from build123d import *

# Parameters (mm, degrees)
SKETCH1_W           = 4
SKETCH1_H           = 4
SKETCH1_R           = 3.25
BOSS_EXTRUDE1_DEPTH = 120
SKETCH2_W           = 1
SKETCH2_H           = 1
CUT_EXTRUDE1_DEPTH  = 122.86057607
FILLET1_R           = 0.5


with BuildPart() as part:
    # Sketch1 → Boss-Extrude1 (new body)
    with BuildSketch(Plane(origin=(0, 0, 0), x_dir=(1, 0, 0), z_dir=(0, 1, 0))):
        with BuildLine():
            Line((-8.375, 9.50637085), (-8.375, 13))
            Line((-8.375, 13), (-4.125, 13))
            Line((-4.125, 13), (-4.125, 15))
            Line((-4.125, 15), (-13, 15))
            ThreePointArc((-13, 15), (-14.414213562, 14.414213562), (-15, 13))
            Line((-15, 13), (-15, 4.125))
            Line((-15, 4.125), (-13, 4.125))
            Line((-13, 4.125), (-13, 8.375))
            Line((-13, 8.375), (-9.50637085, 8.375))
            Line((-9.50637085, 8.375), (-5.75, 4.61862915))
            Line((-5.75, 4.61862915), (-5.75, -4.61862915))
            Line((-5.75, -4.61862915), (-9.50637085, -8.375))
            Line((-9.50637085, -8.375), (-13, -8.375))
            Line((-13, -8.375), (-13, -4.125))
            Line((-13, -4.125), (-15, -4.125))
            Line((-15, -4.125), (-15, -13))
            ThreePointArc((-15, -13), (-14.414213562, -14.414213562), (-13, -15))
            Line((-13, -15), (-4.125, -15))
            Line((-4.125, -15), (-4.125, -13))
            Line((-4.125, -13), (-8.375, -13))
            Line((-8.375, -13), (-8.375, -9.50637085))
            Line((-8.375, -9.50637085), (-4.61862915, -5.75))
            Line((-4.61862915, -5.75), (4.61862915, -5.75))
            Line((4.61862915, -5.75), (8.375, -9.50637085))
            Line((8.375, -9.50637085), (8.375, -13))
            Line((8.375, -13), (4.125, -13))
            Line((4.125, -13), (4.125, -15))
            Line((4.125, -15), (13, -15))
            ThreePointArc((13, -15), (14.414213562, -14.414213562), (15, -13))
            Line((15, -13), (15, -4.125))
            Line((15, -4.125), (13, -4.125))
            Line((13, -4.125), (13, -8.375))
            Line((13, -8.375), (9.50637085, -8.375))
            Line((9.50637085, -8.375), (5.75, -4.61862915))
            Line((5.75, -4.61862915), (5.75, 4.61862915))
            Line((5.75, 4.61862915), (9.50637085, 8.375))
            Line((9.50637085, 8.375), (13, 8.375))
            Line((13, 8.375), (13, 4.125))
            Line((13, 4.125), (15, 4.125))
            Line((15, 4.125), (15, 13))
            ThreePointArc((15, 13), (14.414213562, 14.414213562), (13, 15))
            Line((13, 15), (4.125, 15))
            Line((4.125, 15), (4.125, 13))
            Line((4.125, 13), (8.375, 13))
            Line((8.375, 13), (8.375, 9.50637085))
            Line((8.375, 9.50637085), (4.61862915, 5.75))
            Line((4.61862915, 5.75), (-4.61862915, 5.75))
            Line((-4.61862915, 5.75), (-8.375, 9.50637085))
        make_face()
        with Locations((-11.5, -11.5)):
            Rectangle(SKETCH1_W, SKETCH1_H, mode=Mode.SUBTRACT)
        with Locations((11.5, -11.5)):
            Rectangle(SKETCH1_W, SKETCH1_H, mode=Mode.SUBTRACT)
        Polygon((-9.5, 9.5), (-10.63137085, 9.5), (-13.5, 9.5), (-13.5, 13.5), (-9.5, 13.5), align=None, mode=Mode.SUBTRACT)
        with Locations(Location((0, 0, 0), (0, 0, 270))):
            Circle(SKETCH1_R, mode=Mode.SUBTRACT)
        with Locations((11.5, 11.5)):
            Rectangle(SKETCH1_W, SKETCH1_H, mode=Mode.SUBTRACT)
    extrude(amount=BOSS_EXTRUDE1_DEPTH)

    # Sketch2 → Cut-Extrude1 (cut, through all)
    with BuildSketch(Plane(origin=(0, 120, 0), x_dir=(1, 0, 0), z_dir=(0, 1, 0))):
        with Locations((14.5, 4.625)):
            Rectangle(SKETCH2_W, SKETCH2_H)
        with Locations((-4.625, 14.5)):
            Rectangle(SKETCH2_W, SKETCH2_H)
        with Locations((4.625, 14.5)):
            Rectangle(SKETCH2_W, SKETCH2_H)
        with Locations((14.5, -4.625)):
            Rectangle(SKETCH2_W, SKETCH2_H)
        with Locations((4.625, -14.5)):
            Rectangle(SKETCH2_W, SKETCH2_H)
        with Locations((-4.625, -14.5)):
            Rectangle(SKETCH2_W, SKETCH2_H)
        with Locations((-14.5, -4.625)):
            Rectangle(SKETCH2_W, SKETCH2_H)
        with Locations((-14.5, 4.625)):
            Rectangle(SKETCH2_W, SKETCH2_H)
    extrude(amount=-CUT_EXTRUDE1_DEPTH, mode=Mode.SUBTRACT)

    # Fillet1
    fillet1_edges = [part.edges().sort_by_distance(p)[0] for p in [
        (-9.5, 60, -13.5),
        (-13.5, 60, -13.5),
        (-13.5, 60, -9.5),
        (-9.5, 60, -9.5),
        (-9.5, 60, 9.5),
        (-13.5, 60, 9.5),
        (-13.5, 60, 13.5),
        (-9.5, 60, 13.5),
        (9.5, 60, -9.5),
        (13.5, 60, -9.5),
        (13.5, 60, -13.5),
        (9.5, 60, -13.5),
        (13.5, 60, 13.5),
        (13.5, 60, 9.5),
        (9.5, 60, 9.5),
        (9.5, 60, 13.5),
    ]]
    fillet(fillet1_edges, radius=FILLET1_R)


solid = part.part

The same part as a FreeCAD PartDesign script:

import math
import FreeCAD as App
import Part
import Sketcher

V = App.Vector


def edges_at(feature, points):
    """Names of the edges that pass closest to the given points."""
    edges = feature.Shape.Edges
    near = lambda p: min(range(len(edges)), key=lambda i: edges[i].distToShape(Part.Vertex(*p))[0])
    return sorted({f"Edge{near(p) + 1}" for p in points})

doc = App.newDocument("Part")
body = doc.addObject("PartDesign::Body", "Body")

# Sketch on XZ plane
sketch1 = body.newObject("Sketcher::SketchObject", "Sketch")
sketch1.AttachmentSupport = (doc.getObject("XZ_Plane"), [""])
sketch1.MapMode = "FlatFace"
sketch1.addGeometry([
    Part.LineSegment(V(-8.4, -9.5, 0), V(-8.4, -13, 0)),  # 0
    Part.LineSegment(V(-8.4, -13, 0), V(-4.1, -13, 0)),  # 1
    Part.LineSegment(V(-4.1, -13, 0), V(-4.1, -15, 0)),  # 2
    Part.LineSegment(V(-4.1, -15, 0), V(-13, -15, 0)),  # 3
    Part.ArcOfCircle(Part.Circle(V(-13, -13, 0), V(0, 0, 1), 2), math.radians(-180), math.radians(-90)),  # 4
    Part.LineSegment(V(-15, -13, 0), V(-15, -4.1, 0)),  # 5
    Part.LineSegment(V(-15, -4.1, 0), V(-13, -4.1, 0)),  # 6
    Part.LineSegment(V(-13, -4.1, 0), V(-13, -8.4, 0)),  # 7
    Part.LineSegment(V(-13, -8.4, 0), V(-9.5, -8.4, 0)),  # 8
    Part.LineSegment(V(-9.5, -8.4, 0), V(-5.8, -4.6, 0)),  # 9
    Part.LineSegment(V(-5.8, -4.6, 0), V(-5.8, 4.6, 0)),  # 10
    Part.LineSegment(V(-5.8, 4.6, 0), V(-9.5, 8.4, 0)),  # 11
    Part.LineSegment(V(-9.5, 8.4, 0), V(-13, 8.4, 0)),  # 12
    Part.LineSegment(V(-13, 8.4, 0), V(-13, 4.1, 0)),  # 13
    Part.LineSegment(V(-13, 4.1, 0), V(-15, 4.1, 0)),  # 14
    Part.LineSegment(V(-15, 4.1, 0), V(-15, 13, 0)),  # 15
    Part.ArcOfCircle(Part.Circle(V(-13, 13, 0), V(0, 0, 1), 2), math.radians(90), math.radians(180)),  # 16
    Part.LineSegment(V(-13, 15, 0), V(-4.1, 15, 0)),  # 17
    Part.LineSegment(V(-4.1, 15, 0), V(-4.1, 13, 0)),  # 18
    Part.LineSegment(V(-4.1, 13, 0), V(-8.4, 13, 0)),  # 19
    Part.LineSegment(V(-8.4, 13, 0), V(-8.4, 9.5, 0)),  # 20
    Part.LineSegment(V(-8.4, 9.5, 0), V(-4.6, 5.8, 0)),  # 21
    Part.LineSegment(V(-4.6, 5.8, 0), V(4.6, 5.8, 0)),  # 22
    Part.LineSegment(V(4.6, 5.8, 0), V(8.4, 9.5, 0)),  # 23
    Part.LineSegment(V(8.4, 9.5, 0), V(8.4, 13, 0)),  # 24
    Part.LineSegment(V(8.4, 13, 0), V(4.1, 13, 0)),  # 25
    Part.LineSegment(V(4.1, 13, 0), V(4.1, 15, 0)),  # 26
    Part.LineSegment(V(4.1, 15, 0), V(13, 15, 0)),  # 27
    Part.ArcOfCircle(Part.Circle(V(13, 13, 0), V(0, 0, 1), 2), math.radians(0), math.radians(90)),  # 28
    Part.LineSegment(V(15, 13, 0), V(15, 4.1, 0)),  # 29
    Part.LineSegment(V(15, 4.1, 0), V(13, 4.1, 0)),  # 30
    Part.LineSegment(V(13, 4.1, 0), V(13, 8.4, 0)),  # 31
    Part.LineSegment(V(13, 8.4, 0), V(9.5, 8.4, 0)),  # 32
    Part.LineSegment(V(9.5, 8.4, 0), V(5.8, 4.6, 0)),  # 33
    Part.LineSegment(V(5.8, 4.6, 0), V(5.8, -4.6, 0)),  # 34
    Part.LineSegment(V(5.8, -4.6, 0), V(9.5, -8.4, 0)),  # 35
    Part.LineSegment(V(9.5, -8.4, 0), V(13, -8.4, 0)),  # 36
    Part.LineSegment(V(13, -8.4, 0), V(13, -4.1, 0)),  # 37
    Part.LineSegment(V(13, -4.1, 0), V(15, -4.1, 0)),  # 38
    Part.LineSegment(V(15, -4.1, 0), V(15, -13, 0)),  # 39
    Part.ArcOfCircle(Part.Circle(V(13, -13, 0), V(0, 0, 1), 2), math.radians(-90), math.radians(0)),  # 40
    Part.LineSegment(V(13, -15, 0), V(4.1, -15, 0)),  # 41
    Part.LineSegment(V(4.1, -15, 0), V(4.1, -13, 0)),  # 42
    Part.LineSegment(V(4.1, -13, 0), V(8.4, -13, 0)),  # 43
    Part.LineSegment(V(8.4, -13, 0), V(8.4, -9.5, 0)),  # 44
    Part.LineSegment(V(8.4, -9.5, 0), V(4.6, -5.8, 0)),  # 45
    Part.LineSegment(V(4.6, -5.8, 0), V(-4.6, -5.8, 0)),  # 46
    Part.LineSegment(V(-4.6, -5.8, 0), V(-8.4, -9.5, 0)),  # 47
    Part.LineSegment(V(-9.5, 13.5, 0), V(-13.5, 13.5, 0)),  # 48
    Part.LineSegment(V(-13.5, 13.5, 0), V(-13.5, 9.5, 0)),  # 49
    Part.LineSegment(V(-13.5, 9.5, 0), V(-9.5, 9.5, 0)),  # 50
    Part.LineSegment(V(-9.5, 9.5, 0), V(-9.5, 13.5, 0)),  # 51
    Part.LineSegment(V(13.5, 13.5, 0), V(9.5, 13.5, 0)),  # 52
    Part.LineSegment(V(9.5, 13.5, 0), V(9.5, 9.5, 0)),  # 53
    Part.LineSegment(V(9.5, 9.5, 0), V(13.5, 9.5, 0)),  # 54
    Part.LineSegment(V(13.5, 9.5, 0), V(13.5, 13.5, 0)),  # 55
    Part.LineSegment(V(-9.5, -13.5, 0), V(-9.5, -9.5, 0)),  # 56
    Part.LineSegment(V(-9.5, -9.5, 0), V(-13.5, -9.5, 0)),  # 57
    Part.LineSegment(V(-13.5, -9.5, 0), V(-13.5, -13.5, 0)),  # 58
    Part.LineSegment(V(-13.5, -13.5, 0), V(-9.5, -13.5, 0)),  # 59
    Part.Circle(V(0, 0, 0), V(0, 0, 1), 3.2),  # 60
    Part.LineSegment(V(13.5, -9.5, 0), V(9.5, -9.5, 0)),  # 61
    Part.LineSegment(V(9.5, -9.5, 0), V(9.5, -13.5, 0)),  # 62
    Part.LineSegment(V(9.5, -13.5, 0), V(13.5, -13.5, 0)),  # 63
    Part.LineSegment(V(13.5, -13.5, 0), V(13.5, -9.5, 0)),  # 64
], False)
sketch1.addConstraint([
    Sketcher.Constraint("Coincident", 0, 2, 1, 1),
    Sketcher.Constraint("Coincident", 1, 2, 2, 1),
    Sketcher.Constraint("Coincident", 2, 2, 3, 1),
    Sketcher.Constraint("Tangent", 3, 2, 4, 2),
    Sketcher.Constraint("Tangent", 4, 1, 5, 1),
    Sketcher.Constraint("Coincident", 5, 2, 6, 1),
    Sketcher.Constraint("Coincident", 6, 2, 7, 1),
    Sketcher.Constraint("Coincident", 7, 2, 8, 1),
    Sketcher.Constraint("Coincident", 8, 2, 9, 1),
    Sketcher.Constraint("Coincident", 9, 2, 10, 1),
    Sketcher.Constraint("Coincident", 10, 2, 11, 1),
    Sketcher.Constraint("Coincident", 11, 2, 12, 1),
    Sketcher.Constraint("Coincident", 12, 2, 13, 1),
    Sketcher.Constraint("Coincident", 13, 2, 14, 1),
    Sketcher.Constraint("Coincident", 14, 2, 15, 1),
    Sketcher.Constraint("Tangent", 15, 2, 16, 2),
    Sketcher.Constraint("Tangent", 16, 1, 17, 1),
    Sketcher.Constraint("Coincident", 17, 2, 18, 1),
    Sketcher.Constraint("Coincident", 18, 2, 19, 1),
    Sketcher.Constraint("Coincident", 19, 2, 20, 1),
    Sketcher.Constraint("Coincident", 20, 2, 21, 1),
    Sketcher.Constraint("Coincident", 21, 2, 22, 1),
    Sketcher.Constraint("Coincident", 22, 2, 23, 1),
    Sketcher.Constraint("Coincident", 23, 2, 24, 1),
    Sketcher.Constraint("Coincident", 24, 2, 25, 1),
    Sketcher.Constraint("Coincident", 25, 2, 26, 1),
    Sketcher.Constraint("Coincident", 26, 2, 27, 1),
    Sketcher.Constraint("Tangent", 27, 2, 28, 2),
    Sketcher.Constraint("Tangent", 28, 1, 29, 1),
    Sketcher.Constraint("Coincident", 29, 2, 30, 1),
    Sketcher.Constraint("Coincident", 30, 2, 31, 1),
    Sketcher.Constraint("Coincident", 31, 2, 32, 1),
    Sketcher.Constraint("Coincident", 32, 2, 33, 1),
    Sketcher.Constraint("Coincident", 33, 2, 34, 1),
    Sketcher.Constraint("Coincident", 34, 2, 35, 1),
    Sketcher.Constraint("Coincident", 35, 2, 36, 1),
    Sketcher.Constraint("Coincident", 36, 2, 37, 1),
    Sketcher.Constraint("Coincident", 37, 2, 38, 1),
    Sketcher.Constraint("Coincident", 38, 2, 39, 1),
    Sketcher.Constraint("Tangent", 39, 2, 40, 2),
    Sketcher.Constraint("Tangent", 40, 1, 41, 1),
    Sketcher.Constraint("Coincident", 41, 2, 42, 1),
    Sketcher.Constraint("Coincident", 42, 2, 43, 1),
    Sketcher.Constraint("Coincident", 43, 2, 44, 1),
    Sketcher.Constraint("Coincident", 44, 2, 45, 1),
    Sketcher.Constraint("Coincident", 45, 2, 46, 1),
    Sketcher.Constraint("Coincident", 46, 2, 47, 1),
    Sketcher.Constraint("Coincident", 47, 2, 0, 1),
    Sketcher.Constraint("Coincident", 48, 2, 49, 1),
    Sketcher.Constraint("Coincident", 49, 2, 50, 1),
    Sketcher.Constraint("Coincident", 50, 2, 51, 1),
    Sketcher.Constraint("Coincident", 51, 2, 48, 1),
    Sketcher.Constraint("Coincident", 52, 2, 53, 1),
    Sketcher.Constraint("Coincident", 53, 2, 54, 1),
    Sketcher.Constraint("Coincident", 54, 2, 55, 1),
    Sketcher.Constraint("Coincident", 55, 2, 52, 1),
    Sketcher.Constraint("Coincident", 56, 2, 57, 1),
    Sketcher.Constraint("Coincident", 57, 2, 58, 1),
    Sketcher.Constraint("Coincident", 58, 2, 59, 1),
    Sketcher.Constraint("Coincident", 59, 2, 56, 1),
    Sketcher.Constraint("Coincident", 61, 2, 62, 1),
    Sketcher.Constraint("Coincident", 62, 2, 63, 1),
    Sketcher.Constraint("Coincident", 63, 2, 64, 1),
    Sketcher.Constraint("Coincident", 64, 2, 61, 1),
    Sketcher.Constraint("Vertical", 0),
    Sketcher.Constraint("Horizontal", 1),
    Sketcher.Constraint("Vertical", 2),
    Sketcher.Constraint("Horizontal", 3),
    Sketcher.Constraint("Vertical", 5),
    Sketcher.Constraint("Horizontal", 6),
    Sketcher.Constraint("Vertical", 7),
    Sketcher.Constraint("Horizontal", 8),
    Sketcher.Constraint("Vertical", 10),
    Sketcher.Constraint("Horizontal", 12),
    Sketcher.Constraint("Vertical", 13),
    Sketcher.Constraint("Horizontal", 14),
    Sketcher.Constraint("Vertical", 15),
    Sketcher.Constraint("Horizontal", 17),
    Sketcher.Constraint("Vertical", 18),
    Sketcher.Constraint("Horizontal", 19),
    Sketcher.Constraint("Vertical", 20),
    Sketcher.Constraint("Horizontal", 22),
    Sketcher.Constraint("Vertical", 24),
    Sketcher.Constraint("Horizontal", 25),
    Sketcher.Constraint("Vertical", 26),
    Sketcher.Constraint("Horizontal", 27),
    Sketcher.Constraint("Vertical", 29),
    Sketcher.Constraint("Horizontal", 30),
    Sketcher.Constraint("Vertical", 31),
    Sketcher.Constraint("Horizontal", 32),
    Sketcher.Constraint("Vertical", 34),
    Sketcher.Constraint("Horizontal", 36),
    Sketcher.Constraint("Vertical", 37),
    Sketcher.Constraint("Horizontal", 38),
    Sketcher.Constraint("Vertical", 39),
    Sketcher.Constraint("Horizontal", 41),
    Sketcher.Constraint("Vertical", 42),
    Sketcher.Constraint("Horizontal", 43),
    Sketcher.Constraint("Vertical", 44),
    Sketcher.Constraint("Horizontal", 46),
    Sketcher.Constraint("Horizontal", 48),
    Sketcher.Constraint("Vertical", 49),
    Sketcher.Constraint("Horizontal", 50),
    Sketcher.Constraint("Vertical", 51),
    Sketcher.Constraint("Horizontal", 52),
    Sketcher.Constraint("Vertical", 53),
    Sketcher.Constraint("Horizontal", 54),
    Sketcher.Constraint("Vertical", 55),
    Sketcher.Constraint("Vertical", 56),
    Sketcher.Constraint("Horizontal", 57),
    Sketcher.Constraint("Vertical", 58),
    Sketcher.Constraint("Horizontal", 59),
    Sketcher.Constraint("Horizontal", 61),
    Sketcher.Constraint("Vertical", 62),
    Sketcher.Constraint("Horizontal", 63),
    Sketcher.Constraint("Vertical", 64),
    Sketcher.Constraint("Coincident", 60, 3, -1, 1),
    Sketcher.Constraint("Equal", 4, 16),
    Sketcher.Constraint("Equal", 16, 28),
    Sketcher.Constraint("Equal", 28, 40),
    Sketcher.Constraint("Symmetric", 4, 3, 28, 3, -1, 1),
    Sketcher.Constraint("Symmetric", 16, 3, 40, 3, -1, 1),
    Sketcher.Constraint("Symmetric", 0, 2, 24, 2, -1, 1),
    Sketcher.Constraint("Symmetric", 6, 2, 30, 2, -1, 1),
    Sketcher.Constraint("Symmetric", 8, 2, 32, 2, -1, 1),
    Sketcher.Constraint("Symmetric", 9, 2, 33, 2, -1, 1),
    Sketcher.Constraint("Symmetric", 11, 2, 35, 2, -1, 1),
    Sketcher.Constraint("Symmetric", 13, 2, 37, 2, -1, 1),
    Sketcher.Constraint("Symmetric", 18, 2, 42, 2, -1, 1),
    Sketcher.Constraint("Symmetric", 20, 2, 44, 2, -1, 1),
    Sketcher.Constraint("Symmetric", 21, 2, 45, 2, -1, 1),
    Sketcher.Constraint("Symmetric", 53, 2, 56, 2, -1, 1),
    Sketcher.Constraint("Symmetric", 55, 2, 58, 2, -1, 1),
    Sketcher.Constraint("Symmetric", 50, 2, 61, 2, -1, 1),
    Sketcher.Constraint("Symmetric", 48, 2, 63, 2, -1, 1),
    Sketcher.Constraint("Symmetric", 16, 3, 28, 3, -2),
    Sketcher.Constraint("Symmetric", 20, 2, 23, 2, -2),
    Sketcher.Constraint("Symmetric", 18, 2, 25, 2, -2),
    Sketcher.Constraint("Symmetric", 13, 2, 30, 2, -2),
    Sketcher.Constraint("Symmetric", 11, 2, 32, 2, -2),
    Sketcher.Constraint("Symmetric", 51, 2, 52, 2, -2),
    Sketcher.Constraint("Symmetric", 49, 2, 54, 2, -2),
    Sketcher.Constraint("Perpendicular", 9, 11),
    Sketcher.Constraint("Parallel", 11, 21),
    Sketcher.Constraint("Perpendicular", 21, 23),
    Sketcher.Constraint("Perpendicular", 33, 35),
    Sketcher.Constraint("Perpendicular", 45, 47),
    Sketcher.Constraint("Horizontal", 40, 3, 0, 2),
    Sketcher.Constraint("Horizontal", 10, 2, 33, 2),
    Sketcher.Constraint("Horizontal", 44, 2, 47, 2),
    Sketcher.Constraint("Vertical", 3, 2, 6, 2),
    Sketcher.Constraint("Vertical", 2, 2, 17, 2),
    Sketcher.Constraint("Equal", 36, 0),
    Sketcher.Constraint("Equal", 41, 5),
    Sketcher.Constraint("Equal", 43, 7),
    Sketcher.Constraint("Equal", 46, 10),
    Sketcher.Constraint("Equal", 63, 49),
    Sketcher.Constraint("Equal", 11, 21),
    Sketcher.Constraint("Radius", 4, 2.0),
    Sketcher.Constraint("Diameter", 60, 6.5),
    Sketcher.Constraint("DistanceX", 48, 2, 48, 1, 4.0),
    Sketcher.Constraint("DistanceX", 4, 3, -1, 1, 13.0),
    Sketcher.Constraint("DistanceX", 1, 1, 1, 2, 4.25),
    Sketcher.Constraint("DistanceX", 48, 2, -1, 1, 13.5),
    Sketcher.Constraint("DistanceY", -1, 1, 48, 2, 13.5),
    Sketcher.Constraint("DistanceX", 3, 2, 3, 1, 8.875),
    Sketcher.Constraint("DistanceX", 9, 2, -1, 1, 5.75),
    Sketcher.Constraint("DistanceX", 8, 1, 8, 2, 3.493629),
])
pad1 = body.newObject("PartDesign::Pad", "Pad")
pad1.Profile = sketch1
pad1.Length = 120
pad1.Reversed = True

# Sketch on XZ plane
sketch2 = body.newObject("Sketcher::SketchObject", "Sketch001")
sketch2.AttachmentSupport = (doc.getObject("XZ_Plane"), [""])
sketch2.MapMode = "FlatFace"
sketch2.AttachmentOffset = App.Placement(V(0, 0, -120), App.Rotation())
sketch2.addGeometry([
    Part.LineSegment(V(14, -5.1, 0), V(14, -4.1, 0)),  # 0
    Part.LineSegment(V(14, -4.1, 0), V(15, -4.1, 0)),  # 1
    Part.LineSegment(V(15, -4.1, 0), V(15, -5.1, 0)),  # 2
    Part.LineSegment(V(15, -5.1, 0), V(14, -5.1, 0)),  # 3
    Part.LineSegment(V(-5.1, -15, 0), V(-5.1, -14, 0)),  # 4
    Part.LineSegment(V(-5.1, -14, 0), V(-4.1, -14, 0)),  # 5
    Part.LineSegment(V(-4.1, -14, 0), V(-4.1, -15, 0)),  # 6
    Part.LineSegment(V(-4.1, -15, 0), V(-5.1, -15, 0)),  # 7
    Part.LineSegment(V(4.1, -15, 0), V(4.1, -14, 0)),  # 8
    Part.LineSegment(V(4.1, -14, 0), V(5.1, -14, 0)),  # 9
    Part.LineSegment(V(5.1, -14, 0), V(5.1, -15, 0)),  # 10
    Part.LineSegment(V(5.1, -15, 0), V(4.1, -15, 0)),  # 11
    Part.LineSegment(V(14, 4.1, 0), V(14, 5.1, 0)),  # 12
    Part.LineSegment(V(14, 5.1, 0), V(15, 5.1, 0)),  # 13
    Part.LineSegment(V(15, 5.1, 0), V(15, 4.1, 0)),  # 14
    Part.LineSegment(V(15, 4.1, 0), V(14, 4.1, 0)),  # 15
    Part.LineSegment(V(4.1, 14, 0), V(4.1, 15, 0)),  # 16
    Part.LineSegment(V(4.1, 15, 0), V(5.1, 15, 0)),  # 17
    Part.LineSegment(V(5.1, 15, 0), V(5.1, 14, 0)),  # 18
    Part.LineSegment(V(5.1, 14, 0), V(4.1, 14, 0)),  # 19
    Part.LineSegment(V(-5.1, 14, 0), V(-5.1, 15, 0)),  # 20
    Part.LineSegment(V(-5.1, 15, 0), V(-4.1, 15, 0)),  # 21
    Part.LineSegment(V(-4.1, 15, 0), V(-4.1, 14, 0)),  # 22
    Part.LineSegment(V(-4.1, 14, 0), V(-5.1, 14, 0)),  # 23
    Part.LineSegment(V(-15, 4.1, 0), V(-15, 5.1, 0)),  # 24
    Part.LineSegment(V(-15, 5.1, 0), V(-14, 5.1, 0)),  # 25
    Part.LineSegment(V(-14, 5.1, 0), V(-14, 4.1, 0)),  # 26
    Part.LineSegment(V(-14, 4.1, 0), V(-15, 4.1, 0)),  # 27
    Part.LineSegment(V(-15, -5.1, 0), V(-15, -4.1, 0)),  # 28
    Part.LineSegment(V(-15, -4.1, 0), V(-14, -4.1, 0)),  # 29
    Part.LineSegment(V(-14, -4.1, 0), V(-14, -5.1, 0)),  # 30
    Part.LineSegment(V(-14, -5.1, 0), V(-15, -5.1, 0)),  # 31
], False)
sketch2.addConstraint([
    Sketcher.Constraint("Coincident", 0, 2, 1, 1),
    Sketcher.Constraint("Coincident", 1, 2, 2, 1),
    Sketcher.Constraint("Coincident", 2, 2, 3, 1),
    Sketcher.Constraint("Coincident", 3, 2, 0, 1),
    Sketcher.Constraint("Coincident", 4, 2, 5, 1),
    Sketcher.Constraint("Coincident", 5, 2, 6, 1),
    Sketcher.Constraint("Coincident", 6, 2, 7, 1),
    Sketcher.Constraint("Coincident", 7, 2, 4, 1),
    Sketcher.Constraint("Coincident", 8, 2, 9, 1),
    Sketcher.Constraint("Coincident", 9, 2, 10, 1),
    Sketcher.Constraint("Coincident", 10, 2, 11, 1),
    Sketcher.Constraint("Coincident", 11, 2, 8, 1),
    Sketcher.Constraint("Coincident", 12, 2, 13, 1),
    Sketcher.Constraint("Coincident", 13, 2, 14, 1),
    Sketcher.Constraint("Coincident", 14, 2, 15, 1),
    Sketcher.Constraint("Coincident", 15, 2, 12, 1),
    Sketcher.Constraint("Coincident", 16, 2, 17, 1),
    Sketcher.Constraint("Coincident", 17, 2, 18, 1),
    Sketcher.Constraint("Coincident", 18, 2, 19, 1),
    Sketcher.Constraint("Coincident", 19, 2, 16, 1),
    Sketcher.Constraint("Coincident", 20, 2, 21, 1),
    Sketcher.Constraint("Coincident", 21, 2, 22, 1),
    Sketcher.Constraint("Coincident", 22, 2, 23, 1),
    Sketcher.Constraint("Coincident", 23, 2, 20, 1),
    Sketcher.Constraint("Coincident", 24, 2, 25, 1),
    Sketcher.Constraint("Coincident", 25, 2, 26, 1),
    Sketcher.Constraint("Coincident", 26, 2, 27, 1),
    Sketcher.Constraint("Coincident", 27, 2, 24, 1),
    Sketcher.Constraint("Coincident", 28, 2, 29, 1),
    Sketcher.Constraint("Coincident", 29, 2, 30, 1),
    Sketcher.Constraint("Coincident", 30, 2, 31, 1),
    Sketcher.Constraint("Coincident", 31, 2, 28, 1),
    Sketcher.Constraint("Vertical", 0),
    Sketcher.Constraint("Horizontal", 1),
    Sketcher.Constraint("Vertical", 2),
    Sketcher.Constraint("Horizontal", 3),
    Sketcher.Constraint("Vertical", 4),
    Sketcher.Constraint("Horizontal", 5),
    Sketcher.Constraint("Vertical", 6),
    Sketcher.Constraint("Horizontal", 7),
    Sketcher.Constraint("Vertical", 8),
    Sketcher.Constraint("Horizontal", 9),
    Sketcher.Constraint("Vertical", 10),
    Sketcher.Constraint("Horizontal", 11),
    Sketcher.Constraint("Vertical", 12),
    Sketcher.Constraint("Horizontal", 13),
    Sketcher.Constraint("Vertical", 14),
    Sketcher.Constraint("Horizontal", 15),
    Sketcher.Constraint("Vertical", 16),
    Sketcher.Constraint("Horizontal", 17),
    Sketcher.Constraint("Vertical", 18),
    Sketcher.Constraint("Horizontal", 19),
    Sketcher.Constraint("Vertical", 20),
    Sketcher.Constraint("Horizontal", 21),
    Sketcher.Constraint("Vertical", 22),
    Sketcher.Constraint("Horizontal", 23),
    Sketcher.Constraint("Vertical", 24),
    Sketcher.Constraint("Horizontal", 25),
    Sketcher.Constraint("Vertical", 26),
    Sketcher.Constraint("Horizontal", 27),
    Sketcher.Constraint("Vertical", 28),
    Sketcher.Constraint("Horizontal", 29),
    Sketcher.Constraint("Vertical", 30),
    Sketcher.Constraint("Horizontal", 31),
    Sketcher.Constraint("Symmetric", 6, 2, 16, 2, -1, 1),
    Sketcher.Constraint("Symmetric", 4, 2, 18, 2, -1, 1),
    Sketcher.Constraint("Symmetric", 10, 2, 20, 2, -1, 1),
    Sketcher.Constraint("Symmetric", 8, 2, 22, 2, -1, 1),
    Sketcher.Constraint("Symmetric", 2, 2, 24, 2, -1, 1),
    Sketcher.Constraint("Symmetric", 0, 2, 26, 2, -1, 1),
    Sketcher.Constraint("Symmetric", 14, 2, 28, 2, -1, 1),
    Sketcher.Constraint("Symmetric", 12, 2, 30, 2, -1, 1),
    Sketcher.Constraint("Symmetric", 5, 2, 8, 2, -2),
    Sketcher.Constraint("Symmetric", 7, 2, 10, 2, -2),
    Sketcher.Constraint("Symmetric", 13, 2, 24, 2, -2),
    Sketcher.Constraint("Symmetric", 15, 2, 26, 2, -2),
    Sketcher.Constraint("Equal", 3, 5),
    Sketcher.Constraint("Equal", 31, 0),
    Sketcher.Constraint("Equal", 2, 4),
    Sketcher.Constraint("DistanceX", 1, 1, 1, 2, 1.0),
    Sketcher.Constraint("DistanceX", -1, 1, 0, 2, 14.0),
    Sketcher.Constraint("DistanceY", 4, 2, -1, 1, 14.0),
    Sketcher.Constraint("DistanceX", 5, 2, 8, 2, 8.25),
    Sketcher.Constraint("DistanceY", 0, 2, 12, 2, 9.25),
])
pocket1 = body.newObject("PartDesign::Pocket", "Pocket")
pocket1.Profile = sketch2
pocket1.Type = "ThroughAll"
pocket1.Reversed = True
doc.recompute()

fillet = body.newObject("PartDesign::Fillet", "Fillet")
fillet.Base = (pocket1, edges_at(pocket1, [
    (-9.5, 60, -13.5),
    (-13.5, 60, -13.5),
    (-13.5, 60, -9.5),
    (-9.5, 60, -9.5),
    (-9.5, 60, 9.5),
    (-13.5, 60, 9.5),
    (-13.5, 60, 13.5),
    (-9.5, 60, 13.5),
    (9.5, 60, -9.5),
    (13.5, 60, -9.5),
    (13.5, 60, -13.5),
    (9.5, 60, -13.5),
    (13.5, 60, 13.5),
    (13.5, 60, 9.5),
    (9.5, 60, 9.5),
    (9.5, 60, 13.5),
]))
fillet.Radius = 0.5

doc.recompute()
